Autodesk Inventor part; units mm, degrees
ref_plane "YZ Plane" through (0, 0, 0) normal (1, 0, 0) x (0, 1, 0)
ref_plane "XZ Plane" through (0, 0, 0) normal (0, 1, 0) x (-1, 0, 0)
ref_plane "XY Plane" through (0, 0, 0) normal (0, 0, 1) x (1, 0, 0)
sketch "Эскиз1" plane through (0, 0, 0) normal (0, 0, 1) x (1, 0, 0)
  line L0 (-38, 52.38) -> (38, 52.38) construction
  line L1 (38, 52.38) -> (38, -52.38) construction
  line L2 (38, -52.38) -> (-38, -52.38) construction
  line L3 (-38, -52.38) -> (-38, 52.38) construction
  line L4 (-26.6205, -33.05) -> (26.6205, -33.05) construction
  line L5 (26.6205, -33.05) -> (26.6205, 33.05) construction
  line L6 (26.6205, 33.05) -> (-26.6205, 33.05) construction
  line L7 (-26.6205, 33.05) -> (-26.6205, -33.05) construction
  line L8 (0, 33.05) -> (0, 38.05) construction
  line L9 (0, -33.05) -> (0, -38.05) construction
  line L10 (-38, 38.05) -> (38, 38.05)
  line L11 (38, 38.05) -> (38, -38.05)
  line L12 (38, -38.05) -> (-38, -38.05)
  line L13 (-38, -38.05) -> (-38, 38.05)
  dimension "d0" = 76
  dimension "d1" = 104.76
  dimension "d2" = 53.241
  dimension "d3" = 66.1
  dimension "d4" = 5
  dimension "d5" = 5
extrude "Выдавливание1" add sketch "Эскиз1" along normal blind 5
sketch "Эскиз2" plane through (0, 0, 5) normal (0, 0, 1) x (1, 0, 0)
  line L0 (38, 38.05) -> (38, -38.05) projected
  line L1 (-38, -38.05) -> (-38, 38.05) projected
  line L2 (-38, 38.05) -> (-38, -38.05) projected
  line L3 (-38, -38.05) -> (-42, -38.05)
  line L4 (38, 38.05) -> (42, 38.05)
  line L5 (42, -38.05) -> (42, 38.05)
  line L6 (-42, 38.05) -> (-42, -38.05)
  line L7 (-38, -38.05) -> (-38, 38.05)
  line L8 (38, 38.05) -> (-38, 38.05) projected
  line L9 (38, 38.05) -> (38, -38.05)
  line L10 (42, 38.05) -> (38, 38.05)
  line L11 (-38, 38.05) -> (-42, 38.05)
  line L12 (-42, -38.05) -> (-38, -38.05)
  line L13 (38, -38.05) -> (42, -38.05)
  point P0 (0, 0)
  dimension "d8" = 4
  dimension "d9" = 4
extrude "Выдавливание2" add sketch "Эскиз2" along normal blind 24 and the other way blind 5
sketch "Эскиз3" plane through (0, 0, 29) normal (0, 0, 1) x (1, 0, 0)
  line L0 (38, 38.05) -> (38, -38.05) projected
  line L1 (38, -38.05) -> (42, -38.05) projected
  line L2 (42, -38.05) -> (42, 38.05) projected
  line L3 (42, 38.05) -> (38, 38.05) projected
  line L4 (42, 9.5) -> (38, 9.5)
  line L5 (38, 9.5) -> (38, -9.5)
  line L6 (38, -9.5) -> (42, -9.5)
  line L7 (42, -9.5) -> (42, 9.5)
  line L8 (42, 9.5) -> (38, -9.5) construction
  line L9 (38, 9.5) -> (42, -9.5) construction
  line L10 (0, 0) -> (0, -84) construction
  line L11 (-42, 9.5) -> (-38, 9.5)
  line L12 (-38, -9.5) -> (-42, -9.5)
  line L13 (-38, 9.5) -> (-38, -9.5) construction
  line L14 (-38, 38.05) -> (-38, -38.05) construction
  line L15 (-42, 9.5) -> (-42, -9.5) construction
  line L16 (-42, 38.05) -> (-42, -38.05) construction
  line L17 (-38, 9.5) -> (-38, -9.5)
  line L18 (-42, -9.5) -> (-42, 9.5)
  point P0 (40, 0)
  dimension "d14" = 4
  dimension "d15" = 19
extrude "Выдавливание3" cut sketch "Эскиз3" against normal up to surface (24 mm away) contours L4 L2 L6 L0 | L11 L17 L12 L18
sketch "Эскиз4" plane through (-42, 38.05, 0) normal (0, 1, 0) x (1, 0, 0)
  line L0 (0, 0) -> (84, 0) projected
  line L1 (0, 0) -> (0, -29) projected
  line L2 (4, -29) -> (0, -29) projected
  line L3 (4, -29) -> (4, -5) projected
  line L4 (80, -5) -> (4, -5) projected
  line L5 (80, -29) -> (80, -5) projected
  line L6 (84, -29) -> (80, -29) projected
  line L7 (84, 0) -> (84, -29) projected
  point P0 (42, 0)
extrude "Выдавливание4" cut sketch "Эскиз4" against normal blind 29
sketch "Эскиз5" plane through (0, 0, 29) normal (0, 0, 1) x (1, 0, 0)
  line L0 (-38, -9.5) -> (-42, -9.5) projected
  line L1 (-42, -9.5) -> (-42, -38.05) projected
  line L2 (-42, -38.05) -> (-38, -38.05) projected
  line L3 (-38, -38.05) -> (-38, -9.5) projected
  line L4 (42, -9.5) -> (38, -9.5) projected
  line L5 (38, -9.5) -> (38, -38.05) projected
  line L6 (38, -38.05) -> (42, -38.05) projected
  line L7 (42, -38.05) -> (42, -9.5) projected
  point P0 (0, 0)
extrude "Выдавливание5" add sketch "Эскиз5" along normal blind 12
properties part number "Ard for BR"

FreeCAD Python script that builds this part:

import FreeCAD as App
import Part
import Sketcher

V = App.Vector
Q = App.Units.Quantity


def add_polygon(sketch, points):
    """Adds a closed chain of lines whose ends are joined by coincident constraints."""
    first, n = sketch.GeometryCount, len(points)
    for a, b in zip(points, points[1:] + points[:1]):
        sketch.addGeometry(Part.LineSegment(App.Vector(*a, 0), App.Vector(*b, 0)), False)
    for i in range(n):
        sketch.addConstraint(Sketcher.Constraint("Coincident", first + i, 2, first + (i + 1) % n, 1))

doc = App.newDocument("Part")
body = doc.addObject("PartDesign::Body", "Body")

# Sketch on XY plane
sketch1 = body.newObject("Sketcher::SketchObject", "Sketch")
sketch1.AttachmentSupport = (doc.getObject("XY_Plane"), [""])
sketch1.MapMode = "FlatFace"
add_polygon(sketch1, [(38, 38), (-38, 38), (-38, -38), (38, -38)])  # lines 0-3
sketch1.addConstraint([
    Sketcher.Constraint("Horizontal", 0),
    Sketcher.Constraint("Vertical", 1),
    Sketcher.Constraint("Horizontal", 2),
    Sketcher.Constraint("Vertical", 3),
    Sketcher.Constraint("Symmetric", 0, 2, 2, 2, -1, 1),
    Sketcher.Constraint("DistanceX", 0, 2, 0, 1, Q("76 mm")),
    Sketcher.Constraint("DistanceY", 1, 2, 1, 1, Q("76.1 mm")),
])
pad1 = body.newObject("PartDesign::Pad", "Pad")
pad1.Profile = sketch1
pad1.Length = 5

# Sketch on XY plane
sketch2 = body.newObject("Sketcher::SketchObject", "Sketch001")
sketch2.AttachmentSupport = (doc.getObject("XY_Plane"), [""])
sketch2.MapMode = "FlatFace"
sketch2.AttachmentOffset = App.Placement(V(0, 0, 5), App.Rotation())
add_polygon(sketch2, [(42, 38), (38, 38), (38, -38), (42, -38)])  # lines 0-3
add_polygon(sketch2, [(-38, -38), (-38, 38), (-42, 38), (-42, -38)])  # lines 4-7
sketch2.addConstraint([
    Sketcher.Constraint("Horizontal", 0),
    Sketcher.Constraint("Vertical", 1),
    Sketcher.Constraint("Horizontal", 2),
    Sketcher.Constraint("Vertical", 3),
    Sketcher.Constraint("Vertical", 4),
    Sketcher.Constraint("Horizontal", 5),
    Sketcher.Constraint("Vertical", 6),
    Sketcher.Constraint("Horizontal", 7),
    Sketcher.Constraint("Symmetric", 1, 2, 4, 2, -1, 1),
    Sketcher.Constraint("Symmetric", 3, 2, 6, 2, -1, 1),
    Sketcher.Constraint("Horizontal", 3, 2, 4, 2),
    Sketcher.Constraint("DistanceX", 0, 2, 0, 1, Q("4 mm")),
    Sketcher.Constraint("DistanceY", 1, 2, 1, 1, Q("76.1 mm")),
    Sketcher.Constraint("DistanceX", -1, 1, 0, 2, Q("38 mm")),
])
pad2 = body.newObject("PartDesign::Pad", "Pad001")
pad2.Profile = sketch2
pad2.Type = "TwoLengths"
pad2.Length = 24
pad2.Length2 = 5

# Sketch on XY plane
sketch3 = body.newObject("Sketcher::SketchObject", "Sketch002")
sketch3.AttachmentSupport = (doc.getObject("XY_Plane"), [""])
sketch3.MapMode = "FlatFace"
sketch3.AttachmentOffset = App.Placement(V(0, 0, 29), App.Rotation())
add_polygon(sketch3, [(42, 9.5), (38, 9.5), (38, -9.5), (42, -9.5)])  # lines 0-3
add_polygon(sketch3, [(-38, 9.5), (-42, 9.5), (-42, -9.5), (-38, -9.5)])  # lines 4-7
sketch3.addConstraint([
    Sketcher.Constraint("Horizontal", 0),
    Sketcher.Constraint("Vertical", 1),
    Sketcher.Constraint("Horizontal", 2),
    Sketcher.Constraint("Vertical", 3),
    Sketcher.Constraint("Horizontal", 4),
    Sketcher.Constraint("Vertical", 5),
    Sketcher.Constraint("Horizontal", 6),
    Sketcher.Constraint("Vertical", 7),
    Sketcher.Constraint("Symmetric", 2, 2, 4, 2, -1, 1),
    Sketcher.Constraint("Symmetric", 0, 2, 6, 2, -1, 1),
    Sketcher.Constraint("Horizontal", 3, 2, 4, 2),
    Sketcher.Constraint("DistanceX", 0, 2, 0, 1, Q("4 mm")),
    Sketcher.Constraint("DistanceY", 1, 2, 1, 1, Q("19 mm")),
    Sketcher.Constraint("DistanceX", -1, 1, 0, 2, Q("38 mm")),
])
pocket1 = body.newObject("PartDesign::Pocket", "Pocket")
pocket1.Profile = sketch3
pocket1.Length = 24

# Sketch on XZ plane
sketch4 = body.newObject("Sketcher::SketchObject", "Sketch003")
sketch4.AttachmentSupport = (doc.getObject("XZ_Plane"), [""])
sketch4.MapMode = "FlatFace"
sketch4.AttachmentOffset = App.Placement(V(0, 0, -38.05), App.Rotation())
add_polygon(sketch4, [(42, 0), (-42, 0), (-42, 29), (-38, 29), (-38, 5), (38, 5), (38, 29), (42, 29)])  # lines 0-7
sketch4.addConstraint([
    Sketcher.Constraint("Horizontal", 0),
    Sketcher.Constraint("Vertical", 1),
    Sketcher.Constraint("Horizontal", 2),
    Sketcher.Constraint("Vertical", 3),
    Sketcher.Constraint("Horizontal", 4),
    Sketcher.Constraint("Vertical", 5),
    Sketcher.Constraint("Horizontal", 6),
    Sketcher.Constraint("Vertical", 7),
    Sketcher.Constraint("Symmetric", 0, 2, 7, 2, -1, 1),
    Sketcher.Constraint("Symmetric", 2, 2, 5, 2, -2),
    Sketcher.Constraint("DistanceX", 0, 2, 0, 1, Q("84 mm")),
    Sketcher.Constraint("DistanceX", 2, 1, 2, 2, Q("4 mm")),
    Sketcher.Constraint("DistanceY", 1, 1, 1, 2, Q("29 mm")),
    Sketcher.Constraint("DistanceY", 3, 2, 3, 1, Q("24 mm")),
])
pocket2 = body.newObject("PartDesign::Pocket", "Pocket001")
pocket2.Profile = sketch4
pocket2.Length = 29
pocket2.Reversed = True

# Sketch on XY plane
sketch5 = body.newObject("Sketcher::SketchObject", "Sketch004")
sketch5.AttachmentSupport = (doc.getObject("XY_Plane"), [""])
sketch5.MapMode = "FlatFace"
sketch5.AttachmentOffset = App.Placement(V(0, 0, 29), App.Rotation())
add_polygon(sketch5, [(-38, -38), (-38, -9.5), (-42, -9.5), (-42, -38)])  # lines 0-3
add_polygon(sketch5, [(42, -38), (42, -9.5), (38, -9.5), (38, -38)])  # lines 4-7
sketch5.addConstraint([
    Sketcher.Constraint("Vertical", 0),
    Sketcher.Constraint("Horizontal", 1),
    Sketcher.Constraint("Vertical", 2),
    Sketcher.Constraint("Horizontal", 3),
    Sketcher.Constraint("Vertical", 4),
    Sketcher.Constraint("Horizontal", 5),
    Sketcher.Constraint("Vertical", 6),
    Sketcher.Constraint("Horizontal", 7),
    Sketcher.Constraint("Symmetric", 1, 2, 4, 2, -2),
    Sketcher.Constraint("Symmetric", 3, 2, 6, 2, -2),
    Sketcher.Constraint("DistanceX", 1, 2, 1, 1, Q("4 mm")),
    Sketcher.Constraint("DistanceX", 0, 2, -1, 1, Q("38 mm")),
    Sketcher.Constraint("DistanceY", 0, 1, 0, 2, Q("28.55 mm")),
    Sketcher.Constraint("DistanceY", 0, 2, -1, 1, Q("9.5 mm")),
])
pad3 = body.newObject("PartDesign::Pad", "Pad002")
pad3.Profile = sketch5
pad3.Length = 12

doc.recompute()
